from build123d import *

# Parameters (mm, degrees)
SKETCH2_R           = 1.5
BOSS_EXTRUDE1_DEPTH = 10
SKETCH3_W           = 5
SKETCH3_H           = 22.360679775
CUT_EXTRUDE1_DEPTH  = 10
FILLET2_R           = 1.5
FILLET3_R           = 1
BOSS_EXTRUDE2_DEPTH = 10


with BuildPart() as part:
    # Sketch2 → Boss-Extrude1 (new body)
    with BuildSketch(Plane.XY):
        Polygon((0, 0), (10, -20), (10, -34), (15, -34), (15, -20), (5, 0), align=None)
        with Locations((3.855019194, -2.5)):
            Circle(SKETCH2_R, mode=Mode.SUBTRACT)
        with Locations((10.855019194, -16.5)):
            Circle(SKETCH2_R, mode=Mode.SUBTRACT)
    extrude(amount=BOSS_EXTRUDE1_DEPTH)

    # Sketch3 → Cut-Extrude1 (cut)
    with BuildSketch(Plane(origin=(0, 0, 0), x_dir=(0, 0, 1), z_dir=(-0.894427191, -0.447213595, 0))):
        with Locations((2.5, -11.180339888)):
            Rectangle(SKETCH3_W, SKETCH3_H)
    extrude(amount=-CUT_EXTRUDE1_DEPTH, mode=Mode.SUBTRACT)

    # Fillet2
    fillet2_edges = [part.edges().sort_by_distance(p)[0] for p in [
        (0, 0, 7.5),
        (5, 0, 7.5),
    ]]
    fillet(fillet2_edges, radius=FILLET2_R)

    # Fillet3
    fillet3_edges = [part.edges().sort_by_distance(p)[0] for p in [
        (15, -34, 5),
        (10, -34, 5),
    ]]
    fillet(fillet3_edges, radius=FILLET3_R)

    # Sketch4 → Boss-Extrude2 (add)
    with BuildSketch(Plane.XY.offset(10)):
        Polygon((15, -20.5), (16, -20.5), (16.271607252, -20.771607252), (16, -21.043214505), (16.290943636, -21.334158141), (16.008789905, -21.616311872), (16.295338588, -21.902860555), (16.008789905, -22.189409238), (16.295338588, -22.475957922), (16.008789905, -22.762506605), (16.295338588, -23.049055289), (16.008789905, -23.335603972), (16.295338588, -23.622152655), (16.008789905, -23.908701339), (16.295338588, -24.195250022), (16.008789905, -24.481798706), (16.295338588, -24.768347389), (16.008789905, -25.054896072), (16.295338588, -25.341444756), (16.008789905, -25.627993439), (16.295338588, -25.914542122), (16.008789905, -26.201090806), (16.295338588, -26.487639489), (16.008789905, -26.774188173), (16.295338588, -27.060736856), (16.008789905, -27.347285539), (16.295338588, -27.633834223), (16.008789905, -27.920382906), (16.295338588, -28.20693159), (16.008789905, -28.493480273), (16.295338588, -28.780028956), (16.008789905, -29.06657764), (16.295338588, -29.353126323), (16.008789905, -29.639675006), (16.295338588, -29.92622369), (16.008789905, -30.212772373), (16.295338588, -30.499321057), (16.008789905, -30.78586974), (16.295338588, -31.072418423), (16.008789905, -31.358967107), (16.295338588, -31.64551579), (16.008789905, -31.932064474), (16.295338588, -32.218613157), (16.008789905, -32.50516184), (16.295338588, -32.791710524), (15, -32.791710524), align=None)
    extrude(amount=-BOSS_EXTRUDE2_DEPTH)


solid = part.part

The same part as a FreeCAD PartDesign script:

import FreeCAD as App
import Part
import Sketcher

V = App.Vector


def edges_at(feature, points):
    """Names of the edges that pass closest to the given points."""
    edges = feature.Shape.Edges
    near = lambda p: min(range(len(edges)), key=lambda i: edges[i].distToShape(Part.Vertex(*p))[0])
    return sorted({f"Edge{near(p) + 1}" for p in points})


def add_polygon(sketch, points):
    """Adds a closed chain of lines whose ends are joined by coincident constraints."""
    first, n = sketch.GeometryCount, len(points)
    for a, b in zip(points, points[1:] + points[:1]):
        sketch.addGeometry(Part.LineSegment(App.Vector(*a, 0), App.Vector(*b, 0)), False)
    for i in range(n):
        sketch.addConstraint(Sketcher.Constraint("Coincident", first + i, 2, first + (i + 1) % n, 1))

doc = App.newDocument("Part")
body = doc.addObject("PartDesign::Body", "Body")

# Sketch on XY plane
sketch1 = body.newObject("Sketcher::SketchObject", "Sketch")
sketch1.AttachmentSupport = (doc.getObject("XY_Plane"), [""])
sketch1.MapMode = "FlatFace"
add_polygon(sketch1, [(0, 0), (10, -20), (10, -34), (15, -34), (15, -20), (5, 0)])  # lines 0-5
sketch1.addGeometry(Part.Circle(V(10.9, -16.5, 0), V(0, 0, 1), 1.5), False)  # 6
sketch1.addGeometry(Part.Circle(V(3.9, -2.5, 0), V(0, 0, 1), 1.5), False)  # 7
sketch1.addConstraint([
    Sketcher.Constraint("Vertical", 1),
    Sketcher.Constraint("Horizontal", 2),
    Sketcher.Constraint("Vertical", 3),
    Sketcher.Constraint("Horizontal", 5),
    Sketcher.Constraint("Coincident", 5, 2, -1, 1),
    Sketcher.Constraint("Equal", 6, 7),
    Sketcher.Constraint("Parallel", 0, 4),
    Sketcher.Constraint("Horizontal", 0, 2, 3, 2),
    Sketcher.Constraint("Diameter", 6, 3.0),
    Sketcher.Constraint("DistanceX", 2, 1, 2, 2, 5.0),
    Sketcher.Constraint("DistanceY", 1, 2, 1, 1, 14.0),
    Sketcher.Constraint("DistanceX", -1, 1, 0, 2, 10.0),
    Sketcher.Constraint("DistanceY", 0, 2, -1, 1, 20.0),
    Sketcher.Constraint("DistanceX", 7, 3, 6, 3, 7.0),
    Sketcher.Constraint("DistanceY", 6, 3, 7, 3, 14.0),
    Sketcher.Constraint("DistanceY", 6, 3, -1, 1, 16.5),
    Sketcher.Constraint("DistanceX", -1, 1, 6, 3, 10.855019),
])
pad1 = body.newObject("PartDesign::Pad", "Pad")
pad1.Profile = sketch1
pad1.Length = 10

# Sketch on an angled plane
sketch2 = body.newObject("Sketcher::SketchObject", "Sketch001")
sketch2.Placement = App.Placement(V(0, 0, 0), App.Rotation(V(0, 0, 1), V(-0.447213595, 0.894427191, 0), V(-0.894427191, -0.447213595, 0), "ZXY"))
add_polygon(sketch2, [(0, 0), (0, -22), (5, -22), (5, 0)])  # lines 0-3
sketch2.addConstraint([
    Sketcher.Constraint("Vertical", 0),
    Sketcher.Constraint("Horizontal", 1),
    Sketcher.Constraint("Vertical", 2),
    Sketcher.Constraint("Horizontal", 3),
    Sketcher.Constraint("Coincident", 3, 2, -1, 1),
    Sketcher.Constraint("DistanceX", 1, 1, 1, 2, 5.0),
    Sketcher.Constraint("DistanceY", 0, 2, 0, 1, 22.36068),
])
pocket1 = body.newObject("PartDesign::Pocket", "Pocket")
pocket1.Profile = sketch2
pocket1.Length = 10
doc.recompute()

fillet = body.newObject("PartDesign::Fillet", "Fillet")
fillet.Base = (pocket1, edges_at(pocket1, [(0, 0, 7.5), (5, 0, 7.5)]))
fillet.Radius = 1.5
doc.recompute()

fillet2 = body.newObject("PartDesign::Fillet", "Fillet001")
fillet2.Base = (fillet, edges_at(fillet, [(15, -34, 5), (10, -34, 5)]))
fillet2.Radius = 1

# Sketch on XY plane
sketch3 = body.newObject("Sketcher::SketchObject", "Sketch002")
sketch3.AttachmentSupport = (doc.getObject("XY_Plane"), [""])
sketch3.MapMode = "FlatFace"
sketch3.AttachmentOffset = App.Placement(V(0, 0, 10), App.Rotation())
add_polygon(sketch3, [(16, -20.5), (15, -20.5), (15, -32.79), (16.3, -32.79), (16.01, -32.51), (16.3, -32.22), (16.01, -31.93), (16.3, -31.65), (16.01, -31.36), (16.3, -31.07), (16.01, -30.79), (16.3, -30.5), (16.01, -30.21), (16.3, -29.93), (16.01, -29.64), (16.3, -29.35), (16.01, -29.07), (16.3, -28.78), (16.01, -28.49), (16.3, -28.21), (16.01, -27.92), (16.3, -27.63), (16.01, -27.35), (16.3, -27.06), (16.01, -26.77), (16.3, -26.49), (16.01, -26.2), (16.3, -25.91), (16.01, -25.63), (16.3, -25.34), (16.01, -25.05), (16.3, -24.77), (16.01, -24.48), (16.3, -24.2), (16.01, -23.91), (16.3, -23.62), (16.01, -23.34), (16.3, -23.05), (16.01, -22.76), (16.3, -22.48), (16.01, -22.19), (16.3, -21.9), (16.01, -21.62), (16.29, -21.33), (16, -21.04), (16.27, -20.77)])  # lines 0-45
sketch3.addConstraint([
    Sketcher.Constraint("Horizontal", 0),
    Sketcher.Constraint("Vertical", 1),
    Sketcher.Constraint("Horizontal", 2),
    Sketcher.Constraint("Perpendicular", 3, 4),
    Sketcher.Constraint("Perpendicular", 4, 5),
    Sketcher.Constraint("Perpendicular", 5, 6),
    Sketcher.Constraint("Perpendicular", 6, 7),
    Sketcher.Constraint("Perpendicular", 7, 8),
    Sketcher.Constraint("Perpendicular", 8, 9),
    Sketcher.Constraint("Perpendicular", 9, 10),
    Sketcher.Constraint("Perpendicular", 10, 11),
    Sketcher.Constraint("Perpendicular", 11, 12),
    Sketcher.Constraint("Perpendicular", 12, 13),
    Sketcher.Constraint("Perpendicular", 13, 14),
    Sketcher.Constraint("Perpendicular", 14, 15),
    Sketcher.Constraint("Perpendicular", 15, 16),
    Sketcher.Constraint("Perpendicular", 16, 17),
    Sketcher.Constraint("Perpendicular", 17, 18),
    Sketcher.Constraint("Perpendicular", 18, 19),
    Sketcher.Constraint("Perpendicular", 19, 20),
    Sketcher.Constraint("Perpendicular", 20, 21),
    Sketcher.Constraint("Perpendicular", 21, 22),
    Sketcher.Constraint("Perpendicular", 22, 23),
    Sketcher.Constraint("Perpendicular", 23, 24),
    Sketcher.Constraint("Perpendicular", 24, 25),
    Sketcher.Constraint("Perpendicular", 25, 26),
    Sketcher.Constraint("Perpendicular", 26, 27),
    Sketcher.Constraint("Perpendicular", 27, 28),
    Sketcher.Constraint("Perpendicular", 28, 29),
    Sketcher.Constraint("Perpendicular", 29, 30),
    Sketcher.Constraint("Perpendicular", 30, 31),
    Sketcher.Constraint("Perpendicular", 31, 32),
    Sketcher.Constraint("Perpendicular", 32, 33),
    Sketcher.Constraint("Perpendicular", 33, 34),
    Sketcher.Constraint("Perpendicular", 34, 35),
    Sketcher.Constraint("Perpendicular", 35, 36),
    Sketcher.Constraint("Perpendicular", 36, 37),
    Sketcher.Constraint("Perpendicular", 37, 38),
    Sketcher.Constraint("Perpendicular", 38, 39),
    Sketcher.Constraint("Perpendicular", 39, 40),
    Sketcher.Constraint("Perpendicular", 40, 41),
    Sketcher.Constraint("Perpendicular", 41, 42),
    Sketcher.Constraint("Perpendicular", 42, 43),
    Sketcher.Constraint("Perpendicular", 43, 44),
    Sketcher.Constraint("Perpendicular", 44, 45),
    Sketcher.Constraint("Vertical", 2, 2, 4, 2),
    Sketcher.Constraint("Vertical", 3, 2, 5, 2),
    Sketcher.Constraint("Vertical", 4, 2, 6, 2),
    Sketcher.Constraint("Vertical", 5, 2, 7, 2),
    Sketcher.Constraint("Vertical", 6, 2, 8, 2),
    Sketcher.Constraint("Vertical", 7, 2, 9, 2),
    Sketcher.Constraint("Vertical", 8, 2, 10, 2),
    Sketcher.Constraint("Vertical", 9, 2, 11, 2),
    Sketcher.Constraint("Vertical", 10, 2, 12, 2),
    Sketcher.Constraint("Vertical", 11, 2, 13, 2),
    Sketcher.Constraint("Vertical", 12, 2, 14, 2),
    Sketcher.Constraint("Vertical", 13, 2, 15, 2),
    Sketcher.Constraint("Vertical", 14, 2, 16, 2),
    Sketcher.Constraint("Vertical", 15, 2, 17, 2),
    Sketcher.Constraint("Vertical", 16, 2, 18, 2),
    Sketcher.Constraint("Vertical", 17, 2, 19, 2),
    Sketcher.Constraint("Vertical", 18, 2, 20, 2),
    Sketcher.Constraint("Vertical", 19, 2, 21, 2),
    Sketcher.Constraint("Vertical", 20, 2, 22, 2),
    Sketcher.Constraint("Vertical", 21, 2, 23, 2),
    Sketcher.Constraint("Vertical", 22, 2, 24, 2),
    Sketcher.Constraint("Vertical", 23, 2, 25, 2),
    Sketcher.Constraint("Vertical", 24, 2, 26, 2),
    Sketcher.Constraint("Vertical", 25, 2, 27, 2),
    Sketcher.Constraint("Vertical", 26, 2, 28, 2),
    Sketcher.Constraint("Vertical", 27, 2, 29, 2),
    Sketcher.Constraint("Vertical", 28, 2, 30, 2),
    Sketcher.Constraint("Vertical", 29, 2, 31, 2),
    Sketcher.Constraint("Vertical", 30, 2, 32, 2),
    Sketcher.Constraint("Vertical", 31, 2, 33, 2),
    Sketcher.Constraint("Vertical", 32, 2, 34, 2),
    Sketcher.Constraint("Vertical", 33, 2, 35, 2),
    Sketcher.Constraint("Vertical", 34, 2, 36, 2),
    Sketcher.Constraint("Vertical", 35, 2, 37, 2),
    Sketcher.Constraint("Vertical", 36, 2, 38, 2),
    Sketcher.Constraint("Vertical", 37, 2, 39, 2),
    Sketcher.Constraint("Vertical", 38, 2, 40, 2),
    Sketcher.Constraint("Vertical", 39, 2, 41, 2),
    Sketcher.Constraint("Vertical", 43, 2, 45, 2),
    Sketcher.Constraint("Equal", 3, 4),
    Sketcher.Constraint("DistanceX", 0, 2, 0, 1, 1.0),
    Sketcher.Constraint("DistanceX", -1, 1, 0, 2, 15.0),
    Sketcher.Constraint("DistanceY", 0, 2, -1, 1, 20.5),
    Sketcher.Constraint("DistanceX", 2, 1, 2, 2, 1.295339),
    Sketcher.Constraint("DistanceY", 1, 2, 1, 1, 12.291711),
    Sketcher.Constraint("DistanceY", 31, 2, -1, 1, 24.481799),
    Sketcher.Constraint("DistanceY", 38, 2, 42, 2, 1.1418),
])
pad2 = body.newObject("PartDesign::Pad", "Pad001")
pad2.Profile = sketch3
pad2.Length = 10
pad2.Reversed = True

doc.recompute()
